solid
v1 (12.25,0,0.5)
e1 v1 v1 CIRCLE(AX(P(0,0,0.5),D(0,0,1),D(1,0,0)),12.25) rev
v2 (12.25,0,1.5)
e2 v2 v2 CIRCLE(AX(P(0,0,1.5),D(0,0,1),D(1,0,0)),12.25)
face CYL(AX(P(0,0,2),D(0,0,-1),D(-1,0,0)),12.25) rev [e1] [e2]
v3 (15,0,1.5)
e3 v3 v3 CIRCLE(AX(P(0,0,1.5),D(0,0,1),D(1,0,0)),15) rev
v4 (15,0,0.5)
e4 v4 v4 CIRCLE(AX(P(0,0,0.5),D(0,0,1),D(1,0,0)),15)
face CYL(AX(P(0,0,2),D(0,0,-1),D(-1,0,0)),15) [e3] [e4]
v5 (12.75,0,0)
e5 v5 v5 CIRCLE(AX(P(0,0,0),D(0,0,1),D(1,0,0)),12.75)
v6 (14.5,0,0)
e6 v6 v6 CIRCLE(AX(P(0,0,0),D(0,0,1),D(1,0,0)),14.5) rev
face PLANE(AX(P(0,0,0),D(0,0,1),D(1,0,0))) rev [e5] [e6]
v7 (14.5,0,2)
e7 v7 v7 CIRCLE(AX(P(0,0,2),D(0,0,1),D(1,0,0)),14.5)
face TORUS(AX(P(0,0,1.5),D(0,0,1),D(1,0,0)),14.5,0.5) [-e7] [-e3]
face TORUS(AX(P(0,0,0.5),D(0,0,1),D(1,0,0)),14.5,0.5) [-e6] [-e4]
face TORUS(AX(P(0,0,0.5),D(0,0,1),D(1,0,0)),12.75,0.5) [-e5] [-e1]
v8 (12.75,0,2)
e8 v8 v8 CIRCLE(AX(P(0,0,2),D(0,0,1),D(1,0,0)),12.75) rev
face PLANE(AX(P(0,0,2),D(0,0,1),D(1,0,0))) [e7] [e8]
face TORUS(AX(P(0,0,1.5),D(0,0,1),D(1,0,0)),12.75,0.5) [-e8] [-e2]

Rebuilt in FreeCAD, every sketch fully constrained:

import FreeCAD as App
import Part
import Sketcher

V = App.Vector
Q = App.Units.Quantity


def edges_at(feature, points):
    """Names of the edges that pass closest to the given points."""
    edges = feature.Shape.Edges
    near = lambda p: min(range(len(edges)), key=lambda i: edges[i].distToShape(Part.Vertex(*p))[0])
    return sorted({f"Edge{near(p) + 1}" for p in points})

doc = App.newDocument("Part")
body = doc.addObject("PartDesign::Body", "Body")

# Sketch on XY plane
sketch1 = body.newObject("Sketcher::SketchObject", "Sketch")
sketch1.AttachmentSupport = (doc.getObject("XY_Plane"), [""])
sketch1.MapMode = "FlatFace"
sketch1.addGeometry([
    Part.Circle(V(0, 0, 0), V(0, 0, 1), 15),
    Part.Circle(V(0, 0, 0), V(0, 0, 1), 12),
], False)
sketch1.addConstraint([
    Sketcher.Constraint("Coincident", 0, 3, -1, 1),
    Sketcher.Constraint("Coincident", 1, 3, -1, 1),
    Sketcher.Constraint("Diameter", 0, Q("30 mm")),
    Sketcher.Constraint("Diameter", 1, Q("24.5 mm")),
])
pad1 = body.newObject("PartDesign::Pad", "Pad")
pad1.Profile = sketch1
pad1.Length = 2
doc.recompute()

fillet = body.newObject("PartDesign::Fillet", "Fillet")
fillet.Base = (pad1, edges_at(pad1, [(-15, 0, 2), (-12.25, 0, 2)]))
fillet.Radius = 0.5
doc.recompute()

fillet2 = body.newObject("PartDesign::Fillet", "Fillet001")
fillet2.Base = (fillet, edges_at(fillet, [(-15, 0, 0)]))
fillet2.Radius = 0.5
doc.recompute()

fillet3 = body.newObject("PartDesign::Fillet", "Fillet002")
fillet3.Base = (fillet2, edges_at(fillet2, [(-12.25, 0, 0)]))
fillet3.Radius = 0.5

doc.recompute()
